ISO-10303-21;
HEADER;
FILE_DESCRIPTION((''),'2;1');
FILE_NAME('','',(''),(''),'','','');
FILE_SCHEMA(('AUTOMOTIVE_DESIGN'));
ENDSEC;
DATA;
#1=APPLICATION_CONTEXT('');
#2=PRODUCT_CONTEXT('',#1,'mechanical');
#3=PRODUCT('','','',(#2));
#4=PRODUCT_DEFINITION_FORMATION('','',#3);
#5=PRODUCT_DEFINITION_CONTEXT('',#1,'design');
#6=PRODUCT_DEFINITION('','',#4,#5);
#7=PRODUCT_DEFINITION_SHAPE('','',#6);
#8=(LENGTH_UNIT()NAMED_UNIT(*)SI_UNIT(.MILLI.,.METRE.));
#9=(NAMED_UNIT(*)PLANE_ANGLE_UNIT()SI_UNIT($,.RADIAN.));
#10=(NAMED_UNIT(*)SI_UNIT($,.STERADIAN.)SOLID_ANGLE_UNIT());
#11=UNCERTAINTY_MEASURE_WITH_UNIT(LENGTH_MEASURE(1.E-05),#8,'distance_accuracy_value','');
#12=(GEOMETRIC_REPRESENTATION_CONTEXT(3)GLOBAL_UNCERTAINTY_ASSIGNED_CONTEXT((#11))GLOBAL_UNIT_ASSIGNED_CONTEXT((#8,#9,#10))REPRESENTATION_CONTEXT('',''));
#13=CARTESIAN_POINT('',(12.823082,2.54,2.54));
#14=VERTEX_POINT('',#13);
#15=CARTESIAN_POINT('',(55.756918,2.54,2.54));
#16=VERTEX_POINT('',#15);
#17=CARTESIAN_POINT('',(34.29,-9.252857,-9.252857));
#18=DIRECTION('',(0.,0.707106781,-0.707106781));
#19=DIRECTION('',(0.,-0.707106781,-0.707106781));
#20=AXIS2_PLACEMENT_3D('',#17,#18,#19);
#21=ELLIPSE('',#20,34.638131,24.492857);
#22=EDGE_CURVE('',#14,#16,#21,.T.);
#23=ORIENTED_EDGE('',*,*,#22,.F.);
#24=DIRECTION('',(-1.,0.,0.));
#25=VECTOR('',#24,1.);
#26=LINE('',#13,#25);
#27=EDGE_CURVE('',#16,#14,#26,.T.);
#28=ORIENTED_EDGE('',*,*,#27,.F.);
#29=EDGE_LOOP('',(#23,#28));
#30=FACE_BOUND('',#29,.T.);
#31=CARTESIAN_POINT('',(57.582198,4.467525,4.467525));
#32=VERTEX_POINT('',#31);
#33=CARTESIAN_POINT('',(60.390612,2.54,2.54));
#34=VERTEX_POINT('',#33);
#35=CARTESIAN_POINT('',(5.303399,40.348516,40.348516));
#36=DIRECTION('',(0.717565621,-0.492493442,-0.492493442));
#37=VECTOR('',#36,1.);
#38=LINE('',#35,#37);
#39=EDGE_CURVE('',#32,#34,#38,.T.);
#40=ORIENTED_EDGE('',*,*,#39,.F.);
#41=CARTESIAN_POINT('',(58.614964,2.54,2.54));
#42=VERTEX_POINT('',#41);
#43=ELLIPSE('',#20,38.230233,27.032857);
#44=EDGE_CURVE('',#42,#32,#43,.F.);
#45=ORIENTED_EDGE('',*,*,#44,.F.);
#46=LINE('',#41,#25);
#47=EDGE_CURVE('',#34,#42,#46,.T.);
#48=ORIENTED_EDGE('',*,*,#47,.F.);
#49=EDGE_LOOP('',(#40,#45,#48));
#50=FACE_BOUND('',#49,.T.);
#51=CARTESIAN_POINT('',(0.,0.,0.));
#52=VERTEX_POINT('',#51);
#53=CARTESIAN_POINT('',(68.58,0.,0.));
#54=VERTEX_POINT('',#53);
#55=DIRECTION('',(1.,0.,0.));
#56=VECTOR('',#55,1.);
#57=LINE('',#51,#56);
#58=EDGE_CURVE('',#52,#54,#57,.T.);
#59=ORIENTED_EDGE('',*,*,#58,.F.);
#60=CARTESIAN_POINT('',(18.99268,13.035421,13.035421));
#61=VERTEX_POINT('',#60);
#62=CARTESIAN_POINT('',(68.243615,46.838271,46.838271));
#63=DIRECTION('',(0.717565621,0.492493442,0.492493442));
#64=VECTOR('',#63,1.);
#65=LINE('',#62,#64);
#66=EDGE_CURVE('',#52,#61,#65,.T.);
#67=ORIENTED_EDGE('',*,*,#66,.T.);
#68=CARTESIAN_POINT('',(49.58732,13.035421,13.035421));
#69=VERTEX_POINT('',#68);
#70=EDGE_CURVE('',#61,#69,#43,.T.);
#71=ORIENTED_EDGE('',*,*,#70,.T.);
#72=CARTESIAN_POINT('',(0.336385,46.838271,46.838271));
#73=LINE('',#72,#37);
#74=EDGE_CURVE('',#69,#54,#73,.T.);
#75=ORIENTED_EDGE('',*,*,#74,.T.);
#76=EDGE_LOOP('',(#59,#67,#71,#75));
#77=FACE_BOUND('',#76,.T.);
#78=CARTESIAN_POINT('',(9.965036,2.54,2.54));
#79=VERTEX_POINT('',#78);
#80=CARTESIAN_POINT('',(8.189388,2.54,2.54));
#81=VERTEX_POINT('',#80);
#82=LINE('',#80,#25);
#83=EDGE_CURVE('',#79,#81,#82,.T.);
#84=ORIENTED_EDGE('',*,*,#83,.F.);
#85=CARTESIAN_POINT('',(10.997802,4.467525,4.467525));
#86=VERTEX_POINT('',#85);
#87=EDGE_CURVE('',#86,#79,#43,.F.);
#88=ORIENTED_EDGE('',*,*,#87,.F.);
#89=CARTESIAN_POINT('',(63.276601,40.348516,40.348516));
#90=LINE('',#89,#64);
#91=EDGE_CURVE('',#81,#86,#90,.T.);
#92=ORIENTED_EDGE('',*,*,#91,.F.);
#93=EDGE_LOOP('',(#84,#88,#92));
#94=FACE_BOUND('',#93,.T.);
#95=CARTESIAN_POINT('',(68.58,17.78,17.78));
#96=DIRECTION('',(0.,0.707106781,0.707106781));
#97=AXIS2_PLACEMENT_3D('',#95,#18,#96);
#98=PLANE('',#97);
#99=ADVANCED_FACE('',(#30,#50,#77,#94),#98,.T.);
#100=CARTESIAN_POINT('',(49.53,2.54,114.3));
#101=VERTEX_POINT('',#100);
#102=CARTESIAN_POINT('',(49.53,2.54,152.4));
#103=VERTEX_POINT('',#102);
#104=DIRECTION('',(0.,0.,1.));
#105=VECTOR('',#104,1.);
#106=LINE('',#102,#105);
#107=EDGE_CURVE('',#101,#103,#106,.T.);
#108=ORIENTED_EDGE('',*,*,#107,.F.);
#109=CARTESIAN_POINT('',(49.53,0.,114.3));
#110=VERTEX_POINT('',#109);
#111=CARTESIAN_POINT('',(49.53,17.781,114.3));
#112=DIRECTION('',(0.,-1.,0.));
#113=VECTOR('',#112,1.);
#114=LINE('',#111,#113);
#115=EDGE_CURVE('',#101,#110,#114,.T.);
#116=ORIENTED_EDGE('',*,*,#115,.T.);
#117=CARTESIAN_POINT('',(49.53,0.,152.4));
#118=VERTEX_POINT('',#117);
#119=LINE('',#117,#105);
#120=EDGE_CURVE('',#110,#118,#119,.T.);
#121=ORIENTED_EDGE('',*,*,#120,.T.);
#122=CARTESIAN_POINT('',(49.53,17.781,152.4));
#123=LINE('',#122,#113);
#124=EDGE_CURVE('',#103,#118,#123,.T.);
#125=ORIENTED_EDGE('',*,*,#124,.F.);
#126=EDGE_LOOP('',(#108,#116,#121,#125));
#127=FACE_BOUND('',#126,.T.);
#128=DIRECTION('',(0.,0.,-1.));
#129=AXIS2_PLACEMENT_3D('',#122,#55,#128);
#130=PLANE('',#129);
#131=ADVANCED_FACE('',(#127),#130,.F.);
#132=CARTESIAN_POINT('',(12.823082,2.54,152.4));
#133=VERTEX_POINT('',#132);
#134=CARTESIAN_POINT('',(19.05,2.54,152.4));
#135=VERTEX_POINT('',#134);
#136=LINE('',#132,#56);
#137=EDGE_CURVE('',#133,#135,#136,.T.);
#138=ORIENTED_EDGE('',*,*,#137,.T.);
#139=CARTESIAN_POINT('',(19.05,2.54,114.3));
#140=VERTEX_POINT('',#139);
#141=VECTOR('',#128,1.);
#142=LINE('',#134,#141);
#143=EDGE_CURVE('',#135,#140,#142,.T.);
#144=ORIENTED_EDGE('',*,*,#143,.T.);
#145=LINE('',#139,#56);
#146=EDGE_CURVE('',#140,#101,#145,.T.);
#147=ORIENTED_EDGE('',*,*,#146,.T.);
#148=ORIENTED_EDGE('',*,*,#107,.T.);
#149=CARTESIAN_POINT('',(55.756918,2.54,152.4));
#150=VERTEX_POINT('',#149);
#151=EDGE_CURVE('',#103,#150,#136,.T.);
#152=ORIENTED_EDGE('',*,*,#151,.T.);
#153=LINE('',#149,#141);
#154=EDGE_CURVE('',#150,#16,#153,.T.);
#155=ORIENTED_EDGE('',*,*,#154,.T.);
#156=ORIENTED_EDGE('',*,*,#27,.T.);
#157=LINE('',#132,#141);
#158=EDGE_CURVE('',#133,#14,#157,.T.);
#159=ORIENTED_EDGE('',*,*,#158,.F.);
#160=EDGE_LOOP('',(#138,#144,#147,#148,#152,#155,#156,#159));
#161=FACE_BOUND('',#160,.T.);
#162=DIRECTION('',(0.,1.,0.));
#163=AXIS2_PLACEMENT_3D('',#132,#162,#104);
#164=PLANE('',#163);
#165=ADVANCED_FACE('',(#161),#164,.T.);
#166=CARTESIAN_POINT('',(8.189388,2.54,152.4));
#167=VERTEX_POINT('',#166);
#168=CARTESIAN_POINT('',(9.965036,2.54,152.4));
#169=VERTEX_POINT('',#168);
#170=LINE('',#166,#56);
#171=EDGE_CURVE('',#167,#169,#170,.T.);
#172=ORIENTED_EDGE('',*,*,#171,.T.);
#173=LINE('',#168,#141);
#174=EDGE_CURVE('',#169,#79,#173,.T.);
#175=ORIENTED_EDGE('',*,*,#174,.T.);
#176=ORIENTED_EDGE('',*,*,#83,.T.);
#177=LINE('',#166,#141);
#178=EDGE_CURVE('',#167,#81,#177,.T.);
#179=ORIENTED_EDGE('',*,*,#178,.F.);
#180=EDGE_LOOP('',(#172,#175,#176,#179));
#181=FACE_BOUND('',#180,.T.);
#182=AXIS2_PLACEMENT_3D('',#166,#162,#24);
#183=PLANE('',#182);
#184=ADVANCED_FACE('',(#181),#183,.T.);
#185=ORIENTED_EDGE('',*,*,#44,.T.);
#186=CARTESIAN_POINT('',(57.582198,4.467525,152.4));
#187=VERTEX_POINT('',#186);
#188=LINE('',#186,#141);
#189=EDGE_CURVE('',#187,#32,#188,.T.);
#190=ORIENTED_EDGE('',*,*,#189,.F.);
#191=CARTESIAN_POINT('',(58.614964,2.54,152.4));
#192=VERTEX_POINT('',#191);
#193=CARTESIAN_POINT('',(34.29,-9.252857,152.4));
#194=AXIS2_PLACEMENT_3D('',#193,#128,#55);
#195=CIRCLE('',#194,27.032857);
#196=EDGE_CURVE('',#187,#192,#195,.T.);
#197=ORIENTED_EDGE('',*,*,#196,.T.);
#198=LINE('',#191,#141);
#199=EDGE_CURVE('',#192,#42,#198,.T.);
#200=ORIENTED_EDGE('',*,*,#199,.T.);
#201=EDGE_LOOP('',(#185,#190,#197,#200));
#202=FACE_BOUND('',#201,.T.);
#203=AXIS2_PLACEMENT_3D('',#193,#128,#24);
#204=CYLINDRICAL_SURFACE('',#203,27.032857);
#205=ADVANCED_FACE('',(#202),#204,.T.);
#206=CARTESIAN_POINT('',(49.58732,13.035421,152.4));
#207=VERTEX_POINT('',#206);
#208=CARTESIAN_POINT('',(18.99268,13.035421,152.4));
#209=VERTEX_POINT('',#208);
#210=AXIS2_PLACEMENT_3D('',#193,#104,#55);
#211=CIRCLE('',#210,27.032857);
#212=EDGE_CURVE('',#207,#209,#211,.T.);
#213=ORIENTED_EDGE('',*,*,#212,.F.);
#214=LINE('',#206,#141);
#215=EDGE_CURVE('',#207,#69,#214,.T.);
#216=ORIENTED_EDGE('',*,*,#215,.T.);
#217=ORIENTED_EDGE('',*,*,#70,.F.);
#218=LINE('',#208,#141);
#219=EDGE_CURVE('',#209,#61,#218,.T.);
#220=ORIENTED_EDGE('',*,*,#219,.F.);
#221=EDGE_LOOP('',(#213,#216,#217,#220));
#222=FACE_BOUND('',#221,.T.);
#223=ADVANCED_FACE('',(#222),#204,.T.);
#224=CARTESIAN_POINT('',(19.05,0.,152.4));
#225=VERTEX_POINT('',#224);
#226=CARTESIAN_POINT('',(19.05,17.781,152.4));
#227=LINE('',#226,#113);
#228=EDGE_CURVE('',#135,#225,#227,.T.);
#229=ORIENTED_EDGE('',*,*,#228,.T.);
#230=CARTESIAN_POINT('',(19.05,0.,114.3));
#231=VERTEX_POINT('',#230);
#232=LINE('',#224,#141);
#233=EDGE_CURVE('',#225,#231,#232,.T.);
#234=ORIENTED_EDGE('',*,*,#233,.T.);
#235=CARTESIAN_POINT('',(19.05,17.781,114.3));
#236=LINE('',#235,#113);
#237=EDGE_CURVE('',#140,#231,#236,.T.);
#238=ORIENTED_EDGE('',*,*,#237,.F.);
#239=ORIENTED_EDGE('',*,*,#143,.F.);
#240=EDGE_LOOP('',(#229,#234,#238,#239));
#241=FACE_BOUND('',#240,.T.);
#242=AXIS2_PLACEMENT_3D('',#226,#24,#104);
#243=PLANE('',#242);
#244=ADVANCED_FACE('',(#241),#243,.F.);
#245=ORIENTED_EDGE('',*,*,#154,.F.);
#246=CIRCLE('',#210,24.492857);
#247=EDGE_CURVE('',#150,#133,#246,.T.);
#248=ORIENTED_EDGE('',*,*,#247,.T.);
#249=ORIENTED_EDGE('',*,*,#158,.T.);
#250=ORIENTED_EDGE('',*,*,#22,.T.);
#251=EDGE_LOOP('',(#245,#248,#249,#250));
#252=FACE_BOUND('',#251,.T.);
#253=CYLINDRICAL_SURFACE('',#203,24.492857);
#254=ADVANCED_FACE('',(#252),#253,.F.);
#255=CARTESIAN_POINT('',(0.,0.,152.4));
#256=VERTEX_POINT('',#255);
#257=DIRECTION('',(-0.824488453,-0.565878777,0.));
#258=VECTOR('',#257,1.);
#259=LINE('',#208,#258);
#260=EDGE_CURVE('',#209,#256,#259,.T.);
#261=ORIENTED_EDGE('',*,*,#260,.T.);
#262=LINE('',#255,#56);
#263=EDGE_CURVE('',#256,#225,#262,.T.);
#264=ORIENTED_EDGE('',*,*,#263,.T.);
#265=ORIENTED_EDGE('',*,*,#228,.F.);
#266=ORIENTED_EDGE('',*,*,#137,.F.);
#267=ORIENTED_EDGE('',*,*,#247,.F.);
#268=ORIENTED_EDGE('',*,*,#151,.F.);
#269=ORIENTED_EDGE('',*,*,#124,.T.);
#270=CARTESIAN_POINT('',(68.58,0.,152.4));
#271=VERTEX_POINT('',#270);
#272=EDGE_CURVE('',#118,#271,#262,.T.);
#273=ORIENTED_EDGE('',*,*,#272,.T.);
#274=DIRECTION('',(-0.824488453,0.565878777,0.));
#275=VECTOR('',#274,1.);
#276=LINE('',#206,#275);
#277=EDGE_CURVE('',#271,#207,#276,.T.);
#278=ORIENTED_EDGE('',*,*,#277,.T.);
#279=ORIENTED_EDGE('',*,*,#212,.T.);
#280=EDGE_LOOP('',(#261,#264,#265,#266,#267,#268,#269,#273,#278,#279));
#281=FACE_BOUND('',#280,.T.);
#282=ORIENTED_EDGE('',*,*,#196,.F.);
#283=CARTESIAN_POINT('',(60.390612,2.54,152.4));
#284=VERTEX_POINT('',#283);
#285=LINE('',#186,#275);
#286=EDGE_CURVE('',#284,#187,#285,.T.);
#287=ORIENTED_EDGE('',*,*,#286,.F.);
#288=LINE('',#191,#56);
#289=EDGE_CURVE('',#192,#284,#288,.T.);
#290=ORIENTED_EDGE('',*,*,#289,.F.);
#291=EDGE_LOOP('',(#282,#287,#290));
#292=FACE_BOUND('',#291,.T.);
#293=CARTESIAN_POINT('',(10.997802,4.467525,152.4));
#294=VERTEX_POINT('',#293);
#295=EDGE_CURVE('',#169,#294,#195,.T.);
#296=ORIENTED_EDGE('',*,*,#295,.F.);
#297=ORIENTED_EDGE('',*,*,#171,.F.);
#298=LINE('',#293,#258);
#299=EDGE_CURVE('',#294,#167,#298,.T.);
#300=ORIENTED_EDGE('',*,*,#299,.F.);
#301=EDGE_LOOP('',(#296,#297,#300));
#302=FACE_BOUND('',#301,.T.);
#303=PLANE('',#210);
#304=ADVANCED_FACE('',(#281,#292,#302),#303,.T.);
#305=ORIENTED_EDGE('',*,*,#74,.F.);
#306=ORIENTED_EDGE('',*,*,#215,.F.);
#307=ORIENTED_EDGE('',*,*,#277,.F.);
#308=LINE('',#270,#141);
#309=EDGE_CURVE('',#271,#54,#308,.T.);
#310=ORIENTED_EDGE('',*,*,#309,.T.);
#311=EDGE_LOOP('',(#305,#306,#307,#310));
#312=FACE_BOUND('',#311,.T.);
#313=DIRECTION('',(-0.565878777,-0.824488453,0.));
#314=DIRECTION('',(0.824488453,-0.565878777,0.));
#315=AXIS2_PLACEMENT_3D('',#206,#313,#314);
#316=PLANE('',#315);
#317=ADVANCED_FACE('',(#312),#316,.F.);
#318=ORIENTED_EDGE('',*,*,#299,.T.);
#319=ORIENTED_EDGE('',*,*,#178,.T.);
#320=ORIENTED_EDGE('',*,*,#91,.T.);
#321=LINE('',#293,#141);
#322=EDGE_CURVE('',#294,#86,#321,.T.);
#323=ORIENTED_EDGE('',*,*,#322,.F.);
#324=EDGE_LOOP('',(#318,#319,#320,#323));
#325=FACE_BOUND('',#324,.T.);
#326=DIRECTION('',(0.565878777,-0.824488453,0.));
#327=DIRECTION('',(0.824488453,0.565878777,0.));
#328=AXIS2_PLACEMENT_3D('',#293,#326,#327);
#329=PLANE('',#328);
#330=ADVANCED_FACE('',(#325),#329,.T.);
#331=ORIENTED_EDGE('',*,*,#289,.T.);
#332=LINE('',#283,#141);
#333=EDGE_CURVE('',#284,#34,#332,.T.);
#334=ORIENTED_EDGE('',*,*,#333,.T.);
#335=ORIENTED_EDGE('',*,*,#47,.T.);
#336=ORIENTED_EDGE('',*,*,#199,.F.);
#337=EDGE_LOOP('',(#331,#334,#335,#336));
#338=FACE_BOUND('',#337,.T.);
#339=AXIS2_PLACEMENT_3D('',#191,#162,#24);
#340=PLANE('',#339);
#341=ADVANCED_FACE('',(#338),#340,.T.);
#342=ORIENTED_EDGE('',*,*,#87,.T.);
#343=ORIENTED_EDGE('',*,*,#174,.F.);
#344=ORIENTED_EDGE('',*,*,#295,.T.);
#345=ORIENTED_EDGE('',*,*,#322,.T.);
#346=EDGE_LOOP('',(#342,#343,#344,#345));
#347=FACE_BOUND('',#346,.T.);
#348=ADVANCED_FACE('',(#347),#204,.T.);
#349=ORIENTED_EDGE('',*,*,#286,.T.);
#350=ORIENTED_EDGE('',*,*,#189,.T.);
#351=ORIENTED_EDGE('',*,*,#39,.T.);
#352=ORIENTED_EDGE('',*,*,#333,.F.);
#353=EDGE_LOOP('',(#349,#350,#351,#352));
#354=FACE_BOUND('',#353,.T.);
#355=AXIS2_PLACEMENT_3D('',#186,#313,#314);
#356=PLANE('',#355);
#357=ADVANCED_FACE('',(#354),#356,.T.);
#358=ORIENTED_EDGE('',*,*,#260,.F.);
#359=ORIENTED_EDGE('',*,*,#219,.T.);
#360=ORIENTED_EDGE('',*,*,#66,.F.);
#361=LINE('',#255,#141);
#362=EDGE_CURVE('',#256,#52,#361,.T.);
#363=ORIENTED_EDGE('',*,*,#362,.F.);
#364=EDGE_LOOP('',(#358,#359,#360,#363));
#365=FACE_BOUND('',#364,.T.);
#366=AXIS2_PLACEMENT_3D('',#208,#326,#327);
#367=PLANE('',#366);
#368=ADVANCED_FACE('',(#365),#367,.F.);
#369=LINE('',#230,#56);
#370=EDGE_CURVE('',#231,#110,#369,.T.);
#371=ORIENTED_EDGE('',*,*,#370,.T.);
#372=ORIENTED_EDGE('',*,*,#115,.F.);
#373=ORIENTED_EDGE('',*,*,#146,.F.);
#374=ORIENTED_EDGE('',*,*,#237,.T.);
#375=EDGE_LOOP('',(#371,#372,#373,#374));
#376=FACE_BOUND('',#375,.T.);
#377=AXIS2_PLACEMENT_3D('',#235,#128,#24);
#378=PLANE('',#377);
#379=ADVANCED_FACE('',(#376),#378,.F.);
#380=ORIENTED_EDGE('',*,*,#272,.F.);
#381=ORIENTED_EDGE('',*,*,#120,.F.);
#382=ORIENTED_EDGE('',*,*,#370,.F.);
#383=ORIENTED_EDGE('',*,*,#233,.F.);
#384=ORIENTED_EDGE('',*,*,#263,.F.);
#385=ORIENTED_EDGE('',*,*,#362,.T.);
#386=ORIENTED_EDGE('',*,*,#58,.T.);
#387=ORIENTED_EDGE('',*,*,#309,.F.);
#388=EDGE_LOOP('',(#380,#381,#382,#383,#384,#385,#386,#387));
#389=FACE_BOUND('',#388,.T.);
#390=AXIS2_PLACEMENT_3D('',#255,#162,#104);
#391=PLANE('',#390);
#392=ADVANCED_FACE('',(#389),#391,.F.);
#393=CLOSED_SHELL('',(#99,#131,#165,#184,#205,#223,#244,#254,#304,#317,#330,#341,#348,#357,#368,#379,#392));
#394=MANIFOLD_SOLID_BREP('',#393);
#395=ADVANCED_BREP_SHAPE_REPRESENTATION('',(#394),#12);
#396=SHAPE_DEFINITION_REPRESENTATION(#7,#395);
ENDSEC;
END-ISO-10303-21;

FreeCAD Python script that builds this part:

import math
import FreeCAD as App
import Part
import Sketcher
Q = App.Units.Quantity


def add_polygon(sketch, points):
    """Adds a closed chain of lines whose ends are joined by coincident constraints."""
    first, n = sketch.GeometryCount, len(points)
    for a, b in zip(points, points[1:] + points[:1]):
        sketch.addGeometry(Part.LineSegment(App.Vector(*a, 0), App.Vector(*b, 0)), False)
    for i in range(n):
        sketch.addConstraint(Sketcher.Constraint("Coincident", first + i, 2, first + (i + 1) % n, 1))

doc = App.newDocument("Part")
body = doc.addObject("PartDesign::Body", "Body")

# Sketch on XY plane
sketch1 = body.newObject("Sketcher::SketchObject", "Sketch")
sketch1.AttachmentSupport = (doc.getObject("XY_Plane"), [""])
sketch1.MapMode = "FlatFace"
sketch1.addGeometry([
    Part.LineSegment(App.Vector(0, 0, 0), App.Vector(68.58, 0, 0)),  # 0
    Part.LineSegment(App.Vector(68.58, 0, 0), App.Vector(49.58732, 13.035421, 0)),  # 1
    Part.ArcOfCircle(Part.Circle(App.Vector(34.29, -9.252857, 0), App.Vector(0, 0, 1), 27.032857), math.radians(55.536663), math.radians(124.463337)),  # 2
    Part.LineSegment(App.Vector(18.99268, 13.035421, 0), App.Vector(0, 0, 0)),  # 3
    Part.LineSegment(App.Vector(8.189388, 2.54, 0), App.Vector(10.997802, 4.467525, 0)),  # 4
    Part.ArcOfCircle(Part.Circle(App.Vector(34.29, -9.252857, 0), App.Vector(0, 0, 1), 27.032857), math.radians(149.499581), math.radians(154.135674)),  # 5
    Part.LineSegment(App.Vector(9.965036, 2.54, 0), App.Vector(8.189388, 2.54, 0)),  # 6
    Part.ArcOfCircle(Part.Circle(App.Vector(34.29, -9.252857, 0), App.Vector(0, 0, 1), 27.032857), math.radians(25.864326), math.radians(30.500419)),  # 7
    Part.LineSegment(App.Vector(57.582198, 4.467525, 0), App.Vector(60.390612, 2.54, 0)),  # 8
    Part.LineSegment(App.Vector(60.390612, 2.54, 0), App.Vector(58.614964, 2.54, 0)),  # 9
    Part.LineSegment(App.Vector(55.756918, 2.54, 0), App.Vector(12.823082, 2.54, 0)),  # 10
    Part.ArcOfCircle(Part.Circle(App.Vector(34.29, -9.252857, 0), App.Vector(0, 0, 1), 24.492857), math.radians(28.782205), math.radians(151.217795)),  # 11
], False)
sketch1.addConstraint([
    Sketcher.Constraint("Coincident", 0, 2, 1, 1),
    Sketcher.Constraint("Tangent", 1, 2, 2, 1),
    Sketcher.Constraint("Tangent", 2, 2, 3, 1),
    Sketcher.Constraint("Coincident", 3, 2, 0, 1),
    Sketcher.Constraint("Coincident", 4, 2, 5, 1),
    Sketcher.Constraint("Coincident", 5, 2, 6, 1),
    Sketcher.Constraint("Coincident", 6, 2, 4, 1),
    Sketcher.Constraint("Coincident", 7, 2, 8, 1),
    Sketcher.Constraint("Coincident", 8, 2, 9, 1),
    Sketcher.Constraint("Coincident", 9, 2, 7, 1),
    Sketcher.Constraint("Coincident", 10, 1, 11, 1),
    Sketcher.Constraint("Coincident", 11, 2, 10, 2),
    Sketcher.Constraint("Horizontal", 0),
    Sketcher.Constraint("Horizontal", 6),
    Sketcher.Constraint("Horizontal", 9),
    Sketcher.Constraint("Horizontal", 10),
    Sketcher.Constraint("Coincident", 3, 2, -1, 1),
    Sketcher.Constraint("Coincident", 5, 3, 2, 3),
    Sketcher.Constraint("Coincident", 7, 3, 2, 3),
    Sketcher.Constraint("Coincident", 11, 3, 2, 3),
    Sketcher.Constraint("Equal", 2, 5),
    Sketcher.Constraint("Equal", 5, 7),
    Sketcher.Constraint("Parallel", 3, 4),
    Sketcher.Constraint("Parallel", 1, 8),
    Sketcher.Constraint("Horizontal", 1, 2, 2, 2),
    Sketcher.Constraint("Horizontal", 4, 2, 7, 2),
    Sketcher.Constraint("Horizontal", 6, 2, 8, 2),
    Sketcher.Constraint("Horizontal", 9, 2, 10, 1),
    Sketcher.Constraint("DistanceX", 0, 1, 0, 2, Q("2.7 in")),
    Sketcher.Constraint("DistanceY", -1, 1, 5, 2, Q("0.1 in")),
    Sketcher.Constraint("Radius", 2, 27.032857),
    Sketcher.Constraint("Radius", 11, 24.492857),
    Sketcher.Constraint("DistanceX", 6, 2, 6, 1, 1.775648),
    Sketcher.Constraint("Distance", 4, 3.406251),
])
pad1 = body.newObject("PartDesign::Pad", "Pad")
pad1.Profile = sketch1
pad1.Length = Q("6 in")

# Sketch on YZ plane
sketch2 = body.newObject("Sketcher::SketchObject", "Sketch001")
sketch2.AttachmentSupport = (doc.getObject("YZ_Plane"), [""])
sketch2.MapMode = "FlatFace"
add_polygon(sketch2, [(17.78, 17.78), (0, 0), (17.78, 0)])  # lines 0-2
sketch2.addConstraint([
    Sketcher.Constraint("Horizontal", 1),
    Sketcher.Constraint("Vertical", 2),
    Sketcher.Constraint("Coincident", 0, 2, -1, 1),
    Sketcher.Constraint("Equal", 1, 2),
    Sketcher.Constraint("DistanceX", 1, 1, 1, 2, Q("0.7 in")),
])
pocket1 = body.newObject("PartDesign::Pocket", "Pocket")
pocket1.Profile = sketch2
pocket1.Type = "ThroughAll"
pocket1.Reversed = True

# Sketch on XZ plane
sketch3 = body.newObject("Sketcher::SketchObject", "Sketch002")
sketch3.AttachmentSupport = (doc.getObject("XZ_Plane"), [""])
sketch3.MapMode = "FlatFace"
add_polygon(sketch3, [(19.05, 152.4), (19.05, 114.3), (49.53, 114.3), (49.53, 152.4)])  # lines 0-3
sketch3.addConstraint([
    Sketcher.Constraint("Vertical", 0),
    Sketcher.Constraint("Horizontal", 1),
    Sketcher.Constraint("Vertical", 2),
    Sketcher.Constraint("Horizontal", 3),
    Sketcher.Constraint("DistanceX", 1, 1, 1, 2, Q("1.2 in")),
    Sketcher.Constraint("DistanceY", 0, 2, 0, 1, Q("1.5 in")),
    Sketcher.Constraint("DistanceY", -1, 1, 2, 2, Q("6 in")),
    Sketcher.Constraint("DistanceX", -1, 1, 0, 2, Q("0.75 in")),
])
pocket2 = body.newObject("PartDesign::Pocket", "Pocket001")
pocket2.Profile = sketch3
pocket2.Type = "UpToFirst"

doc.recompute()
